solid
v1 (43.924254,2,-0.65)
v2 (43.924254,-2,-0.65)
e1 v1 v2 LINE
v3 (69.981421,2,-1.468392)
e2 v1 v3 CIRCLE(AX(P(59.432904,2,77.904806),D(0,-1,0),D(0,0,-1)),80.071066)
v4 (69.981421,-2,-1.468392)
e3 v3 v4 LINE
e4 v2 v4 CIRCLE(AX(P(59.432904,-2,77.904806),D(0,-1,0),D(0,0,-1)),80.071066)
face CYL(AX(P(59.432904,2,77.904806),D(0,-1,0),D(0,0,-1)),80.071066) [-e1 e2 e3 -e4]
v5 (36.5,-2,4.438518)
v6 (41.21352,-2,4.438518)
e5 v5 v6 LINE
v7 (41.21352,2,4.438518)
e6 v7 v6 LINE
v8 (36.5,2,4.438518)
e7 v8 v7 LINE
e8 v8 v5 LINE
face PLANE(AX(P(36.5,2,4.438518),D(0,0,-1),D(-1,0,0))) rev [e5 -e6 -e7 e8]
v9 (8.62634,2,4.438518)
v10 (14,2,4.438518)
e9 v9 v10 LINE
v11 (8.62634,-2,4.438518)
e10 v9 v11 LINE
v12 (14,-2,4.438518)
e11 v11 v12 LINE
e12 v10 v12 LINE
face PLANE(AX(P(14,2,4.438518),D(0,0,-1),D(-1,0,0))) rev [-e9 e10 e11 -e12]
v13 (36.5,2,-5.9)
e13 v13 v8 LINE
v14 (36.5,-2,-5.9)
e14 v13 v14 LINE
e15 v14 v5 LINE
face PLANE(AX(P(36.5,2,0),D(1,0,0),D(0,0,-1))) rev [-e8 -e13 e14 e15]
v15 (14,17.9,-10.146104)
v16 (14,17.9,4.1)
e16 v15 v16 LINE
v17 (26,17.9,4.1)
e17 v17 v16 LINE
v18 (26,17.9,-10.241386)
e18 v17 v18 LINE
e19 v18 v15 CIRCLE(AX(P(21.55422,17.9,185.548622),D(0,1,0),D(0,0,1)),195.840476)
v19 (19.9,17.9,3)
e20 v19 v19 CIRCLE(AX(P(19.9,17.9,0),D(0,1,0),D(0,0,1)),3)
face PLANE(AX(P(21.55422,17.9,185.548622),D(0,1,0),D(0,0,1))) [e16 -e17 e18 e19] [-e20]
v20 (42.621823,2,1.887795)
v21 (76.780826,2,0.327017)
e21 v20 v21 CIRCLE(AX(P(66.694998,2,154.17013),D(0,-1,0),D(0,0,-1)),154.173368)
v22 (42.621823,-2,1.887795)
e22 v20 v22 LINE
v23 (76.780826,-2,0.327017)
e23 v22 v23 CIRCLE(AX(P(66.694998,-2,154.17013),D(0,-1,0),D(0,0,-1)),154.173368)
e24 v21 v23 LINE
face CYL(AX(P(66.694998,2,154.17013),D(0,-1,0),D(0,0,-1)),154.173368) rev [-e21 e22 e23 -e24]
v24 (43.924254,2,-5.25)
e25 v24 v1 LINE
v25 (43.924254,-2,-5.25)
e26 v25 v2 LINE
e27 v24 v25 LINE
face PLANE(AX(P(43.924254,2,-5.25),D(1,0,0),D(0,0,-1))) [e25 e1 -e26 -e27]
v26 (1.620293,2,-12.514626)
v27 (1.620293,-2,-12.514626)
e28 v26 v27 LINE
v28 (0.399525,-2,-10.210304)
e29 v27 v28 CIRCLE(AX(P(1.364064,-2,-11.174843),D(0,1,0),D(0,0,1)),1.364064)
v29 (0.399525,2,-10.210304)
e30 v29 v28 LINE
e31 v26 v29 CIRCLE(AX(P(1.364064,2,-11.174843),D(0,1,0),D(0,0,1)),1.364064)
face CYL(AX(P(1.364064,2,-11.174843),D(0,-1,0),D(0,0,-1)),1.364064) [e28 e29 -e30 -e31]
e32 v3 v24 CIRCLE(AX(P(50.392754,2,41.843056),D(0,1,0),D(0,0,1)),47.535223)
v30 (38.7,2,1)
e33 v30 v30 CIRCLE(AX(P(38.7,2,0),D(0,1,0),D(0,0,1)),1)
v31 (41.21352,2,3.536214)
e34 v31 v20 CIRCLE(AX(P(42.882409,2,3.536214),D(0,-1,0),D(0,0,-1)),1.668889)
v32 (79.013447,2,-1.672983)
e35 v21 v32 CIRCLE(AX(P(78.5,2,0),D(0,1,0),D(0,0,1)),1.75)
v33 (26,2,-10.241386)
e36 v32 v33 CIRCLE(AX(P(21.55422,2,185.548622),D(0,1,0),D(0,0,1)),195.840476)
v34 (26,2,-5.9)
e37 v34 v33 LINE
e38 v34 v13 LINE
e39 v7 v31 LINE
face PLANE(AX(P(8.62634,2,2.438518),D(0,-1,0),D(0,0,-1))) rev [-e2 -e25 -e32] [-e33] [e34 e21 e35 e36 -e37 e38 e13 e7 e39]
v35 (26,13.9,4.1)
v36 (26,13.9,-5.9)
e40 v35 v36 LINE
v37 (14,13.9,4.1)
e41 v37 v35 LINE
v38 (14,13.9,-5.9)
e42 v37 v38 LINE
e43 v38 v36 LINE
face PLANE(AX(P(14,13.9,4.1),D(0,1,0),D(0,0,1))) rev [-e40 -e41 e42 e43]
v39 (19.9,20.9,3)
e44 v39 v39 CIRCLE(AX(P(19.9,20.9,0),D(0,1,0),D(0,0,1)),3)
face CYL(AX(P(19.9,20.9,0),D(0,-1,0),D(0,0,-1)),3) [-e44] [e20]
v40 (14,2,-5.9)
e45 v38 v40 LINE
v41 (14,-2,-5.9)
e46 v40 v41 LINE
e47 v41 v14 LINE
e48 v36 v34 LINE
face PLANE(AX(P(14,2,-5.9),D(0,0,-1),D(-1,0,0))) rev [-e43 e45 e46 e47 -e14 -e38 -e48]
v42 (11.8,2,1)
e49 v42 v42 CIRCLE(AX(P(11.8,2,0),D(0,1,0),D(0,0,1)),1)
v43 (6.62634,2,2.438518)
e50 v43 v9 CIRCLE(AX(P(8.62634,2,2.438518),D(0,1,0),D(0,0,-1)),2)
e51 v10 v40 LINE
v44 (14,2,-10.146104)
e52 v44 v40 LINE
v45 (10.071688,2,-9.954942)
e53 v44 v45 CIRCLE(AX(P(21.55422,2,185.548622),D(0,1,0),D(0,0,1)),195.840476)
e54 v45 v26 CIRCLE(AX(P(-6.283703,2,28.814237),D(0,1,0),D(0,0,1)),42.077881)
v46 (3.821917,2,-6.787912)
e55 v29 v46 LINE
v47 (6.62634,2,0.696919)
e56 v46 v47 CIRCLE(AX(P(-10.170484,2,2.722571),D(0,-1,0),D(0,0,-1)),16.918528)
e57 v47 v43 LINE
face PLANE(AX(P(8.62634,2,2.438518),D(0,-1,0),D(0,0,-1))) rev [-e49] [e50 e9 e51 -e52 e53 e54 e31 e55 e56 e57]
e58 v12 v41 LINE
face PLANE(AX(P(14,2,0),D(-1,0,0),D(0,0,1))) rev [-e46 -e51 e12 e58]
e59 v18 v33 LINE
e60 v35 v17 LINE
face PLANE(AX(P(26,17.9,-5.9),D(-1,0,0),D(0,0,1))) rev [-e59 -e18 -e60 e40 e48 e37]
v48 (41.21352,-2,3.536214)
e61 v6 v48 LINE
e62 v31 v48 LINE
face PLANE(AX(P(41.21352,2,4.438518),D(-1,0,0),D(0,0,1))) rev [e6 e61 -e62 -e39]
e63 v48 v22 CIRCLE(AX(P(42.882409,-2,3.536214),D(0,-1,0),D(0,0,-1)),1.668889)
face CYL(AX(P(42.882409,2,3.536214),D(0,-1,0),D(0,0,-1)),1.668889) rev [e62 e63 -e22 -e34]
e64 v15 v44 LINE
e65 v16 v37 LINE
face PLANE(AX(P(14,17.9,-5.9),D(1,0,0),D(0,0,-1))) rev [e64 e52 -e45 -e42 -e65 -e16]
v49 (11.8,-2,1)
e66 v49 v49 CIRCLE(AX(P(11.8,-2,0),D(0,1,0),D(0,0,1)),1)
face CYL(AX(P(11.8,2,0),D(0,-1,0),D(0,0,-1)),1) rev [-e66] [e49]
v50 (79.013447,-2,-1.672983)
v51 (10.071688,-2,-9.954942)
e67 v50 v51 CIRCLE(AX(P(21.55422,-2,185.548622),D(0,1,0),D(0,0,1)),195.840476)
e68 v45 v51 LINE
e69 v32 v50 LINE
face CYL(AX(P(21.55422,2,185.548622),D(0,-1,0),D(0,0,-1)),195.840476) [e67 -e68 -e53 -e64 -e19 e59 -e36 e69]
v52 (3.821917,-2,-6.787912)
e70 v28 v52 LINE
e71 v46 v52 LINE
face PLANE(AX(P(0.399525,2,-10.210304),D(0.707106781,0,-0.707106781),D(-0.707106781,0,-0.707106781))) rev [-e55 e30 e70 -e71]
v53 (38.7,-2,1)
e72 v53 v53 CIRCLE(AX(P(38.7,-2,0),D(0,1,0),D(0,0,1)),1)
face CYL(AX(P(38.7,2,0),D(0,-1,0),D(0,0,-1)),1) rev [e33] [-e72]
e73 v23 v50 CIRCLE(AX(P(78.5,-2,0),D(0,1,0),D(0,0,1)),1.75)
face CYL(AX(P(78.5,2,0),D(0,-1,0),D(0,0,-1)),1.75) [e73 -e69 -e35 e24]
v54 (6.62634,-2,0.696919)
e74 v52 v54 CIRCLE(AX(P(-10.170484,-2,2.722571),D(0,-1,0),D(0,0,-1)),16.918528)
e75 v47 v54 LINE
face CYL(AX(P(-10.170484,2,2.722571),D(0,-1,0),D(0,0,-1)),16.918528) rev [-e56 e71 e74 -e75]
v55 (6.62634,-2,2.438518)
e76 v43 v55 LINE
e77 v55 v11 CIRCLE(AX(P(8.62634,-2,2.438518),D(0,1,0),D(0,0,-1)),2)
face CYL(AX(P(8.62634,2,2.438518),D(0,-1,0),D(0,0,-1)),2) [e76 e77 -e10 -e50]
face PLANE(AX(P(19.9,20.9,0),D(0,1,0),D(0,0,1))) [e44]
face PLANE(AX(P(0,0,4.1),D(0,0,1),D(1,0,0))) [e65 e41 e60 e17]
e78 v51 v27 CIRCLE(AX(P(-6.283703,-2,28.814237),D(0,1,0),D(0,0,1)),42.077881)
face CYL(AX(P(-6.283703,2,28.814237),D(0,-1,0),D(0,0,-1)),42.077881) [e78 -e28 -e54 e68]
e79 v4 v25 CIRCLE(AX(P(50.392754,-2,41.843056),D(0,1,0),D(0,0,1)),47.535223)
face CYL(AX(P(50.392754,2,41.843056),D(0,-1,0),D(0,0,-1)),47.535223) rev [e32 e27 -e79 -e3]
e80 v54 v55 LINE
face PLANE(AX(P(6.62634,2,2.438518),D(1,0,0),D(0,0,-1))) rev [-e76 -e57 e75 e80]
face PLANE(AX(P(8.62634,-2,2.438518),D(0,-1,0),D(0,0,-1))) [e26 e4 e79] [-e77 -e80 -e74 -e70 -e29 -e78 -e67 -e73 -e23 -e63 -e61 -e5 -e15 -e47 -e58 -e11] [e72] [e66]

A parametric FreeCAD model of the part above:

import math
import FreeCAD as App
import Part
import Sketcher

V = App.Vector
Q = App.Units.Quantity

doc = App.newDocument("Part")
body = doc.addObject("PartDesign::Body", "Body")

# Sketch on XZ plane
sketch1 = body.newObject("Sketcher::SketchObject", "Sketch")
sketch1.AttachmentSupport = (doc.getObject("XZ_Plane"), [""])
sketch1.MapMode = "FlatFace"
sketch1.addGeometry([
    Part.LineSegment(V(14, -5.9, 0), V(36.5, -5.9, 0)),  # 0
    Part.LineSegment(V(36.5, -5.9, 0), V(36.5, 4.4, 0)),  # 1
    Part.LineSegment(V(36.5, 4.4, 0), V(41.2, 4.4, 0)),  # 2
    Part.LineSegment(V(41.2, 4.4, 0), V(41.2, 3.5, 0)),  # 3
    Part.ArcOfCircle(Part.Circle(V(42.9, 3.5, 0), V(0, 0, 1), 1.7), math.radians(180), math.radians(261)),  # 4
    Part.ArcOfCircle(Part.Circle(V(66.7, 154.2, 0), V(0, 0, 1), 154.2), math.radians(-98.98), math.radians(-86.25)),  # 5
    Part.ArcOfCircle(Part.Circle(V(78.5, 0, 0), V(0, 0, 1), 1.8), math.radians(-73), math.radians(169)),  # 6
    Part.ArcOfCircle(Part.Circle(V(21.6, 185.5, 0), V(0, 0, 1), 195.8), math.radians(-93), math.radians(-73)),  # 7
    Part.ArcOfCircle(Part.Circle(V(-6.3, 28.8, 0), V(0, 0, 1), 42.1), math.radians(-79.17), math.radians(-67.13)),  # 8
    Part.ArcOfCircle(Part.Circle(V(1.4, -11.2, 0), V(0, 0, 1), 1.4), math.radians(135), math.radians(281)),  # 9
    Part.LineSegment(V(0.4, -10.2, 0), V(3.8, -6.8, 0)),  # 10
    Part.ArcOfCircle(Part.Circle(V(-10.2, 2.7, 0), V(0, 0, 1), 16.9), math.radians(-34), math.radians(-7)),  # 11
    Part.LineSegment(V(6.6, 0.7, 0), V(6.6, 2.4, 0)),  # 12
    Part.ArcOfCircle(Part.Circle(V(8.6, 2.4, 0), V(0, 0, 1), 2), math.radians(90), math.radians(180)),  # 13
    Part.LineSegment(V(8.6, 4.4, 0), V(14, 4.4, 0)),  # 14
    Part.LineSegment(V(14, 4.4, 0), V(14, -5.9, 0)),  # 15
    Part.Circle(V(11.8, 0, 0), V(0, 0, 1), 1),  # 16
    Part.Circle(V(38.7, 0, 0), V(0, 0, 1), 1),  # 17
    Part.LineSegment(V(43.9, -0.7, 0), V(43.9, -5.2, 0)),  # 18
    Part.ArcOfCircle(Part.Circle(V(50.4, 41.8, 0), V(0, 0, 1), 47.5), math.radians(-98), math.radians(-66)),  # 19
    Part.ArcOfCircle(Part.Circle(V(59.4, 77.9, 0), V(0, 0, 1), 80.1), math.radians(-101.17), math.radians(-82.43)),  # 20
], False)
sketch1.addConstraint([
    Sketcher.Constraint("Coincident", 0, 2, 1, 1),
    Sketcher.Constraint("Coincident", 1, 2, 2, 1),
    Sketcher.Constraint("Coincident", 2, 2, 3, 1),
    Sketcher.Constraint("Tangent", 3, 2, 4, 1),
    Sketcher.Constraint("Tangent", 4, 2, 5, 1),
    Sketcher.Constraint("Coincident", 5, 2, 6, 2),
    Sketcher.Constraint("Tangent", 6, 1, 7, 2),
    Sketcher.Constraint("Coincident", 7, 1, 8, 2),
    Sketcher.Constraint("Tangent", 8, 1, 9, 2),
    Sketcher.Constraint("Tangent", 9, 1, 10, 1),
    Sketcher.Constraint("Coincident", 10, 2, 11, 1),
    Sketcher.Constraint("Coincident", 11, 2, 12, 1),
    Sketcher.Constraint("Tangent", 12, 2, 13, 2),
    Sketcher.Constraint("Tangent", 13, 1, 14, 1),
    Sketcher.Constraint("Coincident", 14, 2, 15, 1),
    Sketcher.Constraint("Coincident", 15, 2, 0, 1),
    Sketcher.Constraint("Coincident", 18, 2, 19, 1),
    Sketcher.Constraint("Coincident", 19, 2, 20, 2),
    Sketcher.Constraint("Coincident", 20, 1, 18, 1),
    Sketcher.Constraint("Horizontal", 0),
    Sketcher.Constraint("Vertical", 1),
    Sketcher.Constraint("Horizontal", 2),
    Sketcher.Constraint("Vertical", 3),
    Sketcher.Constraint("Vertical", 12),
    Sketcher.Constraint("Horizontal", 14),
    Sketcher.Constraint("Vertical", 15),
    Sketcher.Constraint("Vertical", 18),
    Sketcher.Constraint("Equal", 16, 17),
    Sketcher.Constraint("PointOnObject", 6, 3, -1),
    Sketcher.Constraint("PointOnObject", 16, 3, -1),
    Sketcher.Constraint("PointOnObject", 17, 3, -1),
    Sketcher.Constraint("Horizontal", 2, 2, 13, 1),
    Sketcher.Constraint("Diameter", 16, 2.0),
    Sketcher.Constraint("Radius", 13, 2.0),
    Sketcher.Constraint("Angle", 10, Q("45 deg")),
    Sketcher.Constraint("Radius", 6, 1.75),
    Sketcher.Constraint("DistanceX", 0, 1, 0, 2, 22.5),
    Sketcher.Constraint("DistanceY", 18, 2, 18, 1, 4.6),
    Sketcher.Constraint("DistanceX", -1, 1, 14, 2, 14.0),
    Sketcher.Constraint("DistanceY", 6, 1, 5, 2, 2.0),
    Sketcher.Constraint("DistanceX", -1, 1, 6, 3, 78.5),
    Sketcher.Constraint("DistanceX", -1, 1, 16, 3, 11.8),
    Sketcher.Constraint("DistanceX", -1, 1, 17, 3, 38.7),
    Sketcher.Constraint("DistanceY", 0, 2, -1, 1, 5.9),
    Sketcher.Constraint("DistanceY", 18, 2, -1, 1, 5.25),
    Sketcher.Constraint("Radius", 4, 1.668889),
    Sketcher.Constraint("Radius", 8, 42.077881),
    Sketcher.Constraint("DistanceY", 12, 1, 12, 2, 1.741599),
    Sketcher.Constraint("Radius", 5, 154.173367),
    Sketcher.Constraint("Radius", 7, 195.840476),
    Sketcher.Constraint("Radius", 9, 1.364064),
    Sketcher.Constraint("Radius", 11, 16.918528),
    Sketcher.Constraint("Radius", 19, 47.535223),
    Sketcher.Constraint("Radius", 20, 80.071066),
    Sketcher.Constraint("DistanceX", 2, 1, 2, 2, 4.71352),
    Sketcher.Constraint("DistanceX", 14, 1, 14, 2, 5.37366),
    Sketcher.Constraint("DistanceY", 1, 1, 1, 2, 10.338518),
    Sketcher.Constraint("DistanceX", 8, 3, 5, 3, 72.978701),
    Sketcher.Constraint("DistanceY", 9, 3, 7, 1, 1.219901),
    Sketcher.Constraint("DistanceY", 3, 2, 3, 1, 0.902304),
    Sketcher.Constraint("DistanceX", -1, 1, 7, 3, 21.55422),
    Sketcher.Constraint("DistanceY", -1, 1, 11, 3, 2.722571),
    Sketcher.Constraint("DistanceX", -1, 1, 19, 2, 69.981421),
    Sketcher.Constraint("DistanceY", 19, 2, -1, 1, 1.468392),
    Sketcher.Constraint("DistanceY", 9, 3, 8, 3, 39.98908),
    Sketcher.Constraint("DistanceY", 4, 3, 19, 3, 38.306842),
])
pad1 = body.newObject("PartDesign::Pad", "Pad")
pad1.Profile = sketch1
pad1.Length = 4
pad1.Midplane = True

# Sketch on XZ plane
sketch2 = body.newObject("Sketcher::SketchObject", "Sketch001")
sketch2.AttachmentSupport = (doc.getObject("XZ_Plane"), [""])
sketch2.MapMode = "FlatFace"
sketch2.AttachmentOffset = App.Placement(V(0, 0, -17.9), App.Rotation())
sketch2.addGeometry([
    Part.LineSegment(V(14, -10.1, 0), V(14, -5.9, 0)),
    Part.LineSegment(V(14, -5.9, 0), V(26, -5.9, 0)),
    Part.LineSegment(V(26, -5.9, 0), V(26, -10.2, 0)),
    Part.ArcOfCircle(Part.Circle(V(21.6, 185.5, 0), V(0, 0, 1), 195.8), math.radians(-92.21), math.radians(-88.7)),
], False)
sketch2.addConstraint([
    Sketcher.Constraint("Coincident", 0, 2, 1, 1),
    Sketcher.Constraint("Coincident", 1, 2, 2, 1),
    Sketcher.Constraint("Coincident", 2, 2, 3, 2),
    Sketcher.Constraint("Coincident", 3, 1, 0, 1),
    Sketcher.Constraint("Vertical", 0),
    Sketcher.Constraint("Horizontal", 1),
    Sketcher.Constraint("Vertical", 2),
    Sketcher.Constraint("DistanceX", 1, 1, 1, 2, 12.0),
    Sketcher.Constraint("DistanceX", -1, 1, 0, 2, 14.0),
    Sketcher.Constraint("DistanceY", 0, 2, -1, 1, 5.9),
    Sketcher.Constraint("Radius", 3, 195.840476),
    Sketcher.Constraint("DistanceY", 0, 1, 0, 2, 4.246104),
    Sketcher.Constraint("DistanceY", 2, 2, 2, 1, 4.341386),
])
pad2 = body.newObject("PartDesign::Pad", "Pad001")
pad2.Profile = sketch2
pad2.Length = 15.9

# Sketch on XY plane
sketch3 = body.newObject("Sketcher::SketchObject", "Sketch002")
sketch3.AttachmentSupport = (doc.getObject("XY_Plane"), [""])
sketch3.MapMode = "FlatFace"
sketch3.AttachmentOffset = App.Placement(V(0, 0, -5.9), App.Rotation())
sketch3.addGeometry([
    Part.LineSegment(V(14, 17.9, 0), V(14, 13.9, 0)),
    Part.LineSegment(V(14, 13.9, 0), V(26, 13.9, 0)),
    Part.LineSegment(V(26, 13.9, 0), V(26, 17.9, 0)),
    Part.LineSegment(V(26, 17.9, 0), V(14, 17.9, 0)),
], False)
sketch3.addConstraint([
    Sketcher.Constraint("Coincident", 0, 2, 1, 1),
    Sketcher.Constraint("Coincident", 1, 2, 2, 1),
    Sketcher.Constraint("Coincident", 2, 2, 3, 1),
    Sketcher.Constraint("Coincident", 3, 2, 0, 1),
    Sketcher.Constraint("Vertical", 0),
    Sketcher.Constraint("Horizontal", 1),
    Sketcher.Constraint("Vertical", 2),
    Sketcher.Constraint("Horizontal", 3),
    Sketcher.Constraint("DistanceX", 1, 1, 1, 2, 12.0),
    Sketcher.Constraint("DistanceY", 0, 2, 0, 1, 4.0),
    Sketcher.Constraint("DistanceX", -1, 1, 0, 2, 14.0),
    Sketcher.Constraint("DistanceY", -1, 1, 0, 2, 13.9),
])
pad3 = body.newObject("PartDesign::Pad", "Pad002")
pad3.Profile = sketch3
pad3.Length = 10

# Sketch on XZ plane
sketch4 = body.newObject("Sketcher::SketchObject", "Sketch003")
sketch4.AttachmentSupport = (doc.getObject("XZ_Plane"), [""])
sketch4.MapMode = "FlatFace"
sketch4.AttachmentOffset = App.Placement(V(0, 0, -17.9), App.Rotation())
sketch4.addGeometry(Part.Circle(V(19.9, 0, 0), V(0, 0, 1), 3), False)
sketch4.addConstraint([
    Sketcher.Constraint("PointOnObject", 0, 3, -1),
    Sketcher.Constraint("Diameter", 0, 6.0),
    Sketcher.Constraint("DistanceX", -1, 1, 0, 3, 19.9),
])
pad4 = body.newObject("PartDesign::Pad", "Pad003")
pad4.Profile = sketch4
pad4.Length = 3
pad4.Reversed = True

doc.recompute()
